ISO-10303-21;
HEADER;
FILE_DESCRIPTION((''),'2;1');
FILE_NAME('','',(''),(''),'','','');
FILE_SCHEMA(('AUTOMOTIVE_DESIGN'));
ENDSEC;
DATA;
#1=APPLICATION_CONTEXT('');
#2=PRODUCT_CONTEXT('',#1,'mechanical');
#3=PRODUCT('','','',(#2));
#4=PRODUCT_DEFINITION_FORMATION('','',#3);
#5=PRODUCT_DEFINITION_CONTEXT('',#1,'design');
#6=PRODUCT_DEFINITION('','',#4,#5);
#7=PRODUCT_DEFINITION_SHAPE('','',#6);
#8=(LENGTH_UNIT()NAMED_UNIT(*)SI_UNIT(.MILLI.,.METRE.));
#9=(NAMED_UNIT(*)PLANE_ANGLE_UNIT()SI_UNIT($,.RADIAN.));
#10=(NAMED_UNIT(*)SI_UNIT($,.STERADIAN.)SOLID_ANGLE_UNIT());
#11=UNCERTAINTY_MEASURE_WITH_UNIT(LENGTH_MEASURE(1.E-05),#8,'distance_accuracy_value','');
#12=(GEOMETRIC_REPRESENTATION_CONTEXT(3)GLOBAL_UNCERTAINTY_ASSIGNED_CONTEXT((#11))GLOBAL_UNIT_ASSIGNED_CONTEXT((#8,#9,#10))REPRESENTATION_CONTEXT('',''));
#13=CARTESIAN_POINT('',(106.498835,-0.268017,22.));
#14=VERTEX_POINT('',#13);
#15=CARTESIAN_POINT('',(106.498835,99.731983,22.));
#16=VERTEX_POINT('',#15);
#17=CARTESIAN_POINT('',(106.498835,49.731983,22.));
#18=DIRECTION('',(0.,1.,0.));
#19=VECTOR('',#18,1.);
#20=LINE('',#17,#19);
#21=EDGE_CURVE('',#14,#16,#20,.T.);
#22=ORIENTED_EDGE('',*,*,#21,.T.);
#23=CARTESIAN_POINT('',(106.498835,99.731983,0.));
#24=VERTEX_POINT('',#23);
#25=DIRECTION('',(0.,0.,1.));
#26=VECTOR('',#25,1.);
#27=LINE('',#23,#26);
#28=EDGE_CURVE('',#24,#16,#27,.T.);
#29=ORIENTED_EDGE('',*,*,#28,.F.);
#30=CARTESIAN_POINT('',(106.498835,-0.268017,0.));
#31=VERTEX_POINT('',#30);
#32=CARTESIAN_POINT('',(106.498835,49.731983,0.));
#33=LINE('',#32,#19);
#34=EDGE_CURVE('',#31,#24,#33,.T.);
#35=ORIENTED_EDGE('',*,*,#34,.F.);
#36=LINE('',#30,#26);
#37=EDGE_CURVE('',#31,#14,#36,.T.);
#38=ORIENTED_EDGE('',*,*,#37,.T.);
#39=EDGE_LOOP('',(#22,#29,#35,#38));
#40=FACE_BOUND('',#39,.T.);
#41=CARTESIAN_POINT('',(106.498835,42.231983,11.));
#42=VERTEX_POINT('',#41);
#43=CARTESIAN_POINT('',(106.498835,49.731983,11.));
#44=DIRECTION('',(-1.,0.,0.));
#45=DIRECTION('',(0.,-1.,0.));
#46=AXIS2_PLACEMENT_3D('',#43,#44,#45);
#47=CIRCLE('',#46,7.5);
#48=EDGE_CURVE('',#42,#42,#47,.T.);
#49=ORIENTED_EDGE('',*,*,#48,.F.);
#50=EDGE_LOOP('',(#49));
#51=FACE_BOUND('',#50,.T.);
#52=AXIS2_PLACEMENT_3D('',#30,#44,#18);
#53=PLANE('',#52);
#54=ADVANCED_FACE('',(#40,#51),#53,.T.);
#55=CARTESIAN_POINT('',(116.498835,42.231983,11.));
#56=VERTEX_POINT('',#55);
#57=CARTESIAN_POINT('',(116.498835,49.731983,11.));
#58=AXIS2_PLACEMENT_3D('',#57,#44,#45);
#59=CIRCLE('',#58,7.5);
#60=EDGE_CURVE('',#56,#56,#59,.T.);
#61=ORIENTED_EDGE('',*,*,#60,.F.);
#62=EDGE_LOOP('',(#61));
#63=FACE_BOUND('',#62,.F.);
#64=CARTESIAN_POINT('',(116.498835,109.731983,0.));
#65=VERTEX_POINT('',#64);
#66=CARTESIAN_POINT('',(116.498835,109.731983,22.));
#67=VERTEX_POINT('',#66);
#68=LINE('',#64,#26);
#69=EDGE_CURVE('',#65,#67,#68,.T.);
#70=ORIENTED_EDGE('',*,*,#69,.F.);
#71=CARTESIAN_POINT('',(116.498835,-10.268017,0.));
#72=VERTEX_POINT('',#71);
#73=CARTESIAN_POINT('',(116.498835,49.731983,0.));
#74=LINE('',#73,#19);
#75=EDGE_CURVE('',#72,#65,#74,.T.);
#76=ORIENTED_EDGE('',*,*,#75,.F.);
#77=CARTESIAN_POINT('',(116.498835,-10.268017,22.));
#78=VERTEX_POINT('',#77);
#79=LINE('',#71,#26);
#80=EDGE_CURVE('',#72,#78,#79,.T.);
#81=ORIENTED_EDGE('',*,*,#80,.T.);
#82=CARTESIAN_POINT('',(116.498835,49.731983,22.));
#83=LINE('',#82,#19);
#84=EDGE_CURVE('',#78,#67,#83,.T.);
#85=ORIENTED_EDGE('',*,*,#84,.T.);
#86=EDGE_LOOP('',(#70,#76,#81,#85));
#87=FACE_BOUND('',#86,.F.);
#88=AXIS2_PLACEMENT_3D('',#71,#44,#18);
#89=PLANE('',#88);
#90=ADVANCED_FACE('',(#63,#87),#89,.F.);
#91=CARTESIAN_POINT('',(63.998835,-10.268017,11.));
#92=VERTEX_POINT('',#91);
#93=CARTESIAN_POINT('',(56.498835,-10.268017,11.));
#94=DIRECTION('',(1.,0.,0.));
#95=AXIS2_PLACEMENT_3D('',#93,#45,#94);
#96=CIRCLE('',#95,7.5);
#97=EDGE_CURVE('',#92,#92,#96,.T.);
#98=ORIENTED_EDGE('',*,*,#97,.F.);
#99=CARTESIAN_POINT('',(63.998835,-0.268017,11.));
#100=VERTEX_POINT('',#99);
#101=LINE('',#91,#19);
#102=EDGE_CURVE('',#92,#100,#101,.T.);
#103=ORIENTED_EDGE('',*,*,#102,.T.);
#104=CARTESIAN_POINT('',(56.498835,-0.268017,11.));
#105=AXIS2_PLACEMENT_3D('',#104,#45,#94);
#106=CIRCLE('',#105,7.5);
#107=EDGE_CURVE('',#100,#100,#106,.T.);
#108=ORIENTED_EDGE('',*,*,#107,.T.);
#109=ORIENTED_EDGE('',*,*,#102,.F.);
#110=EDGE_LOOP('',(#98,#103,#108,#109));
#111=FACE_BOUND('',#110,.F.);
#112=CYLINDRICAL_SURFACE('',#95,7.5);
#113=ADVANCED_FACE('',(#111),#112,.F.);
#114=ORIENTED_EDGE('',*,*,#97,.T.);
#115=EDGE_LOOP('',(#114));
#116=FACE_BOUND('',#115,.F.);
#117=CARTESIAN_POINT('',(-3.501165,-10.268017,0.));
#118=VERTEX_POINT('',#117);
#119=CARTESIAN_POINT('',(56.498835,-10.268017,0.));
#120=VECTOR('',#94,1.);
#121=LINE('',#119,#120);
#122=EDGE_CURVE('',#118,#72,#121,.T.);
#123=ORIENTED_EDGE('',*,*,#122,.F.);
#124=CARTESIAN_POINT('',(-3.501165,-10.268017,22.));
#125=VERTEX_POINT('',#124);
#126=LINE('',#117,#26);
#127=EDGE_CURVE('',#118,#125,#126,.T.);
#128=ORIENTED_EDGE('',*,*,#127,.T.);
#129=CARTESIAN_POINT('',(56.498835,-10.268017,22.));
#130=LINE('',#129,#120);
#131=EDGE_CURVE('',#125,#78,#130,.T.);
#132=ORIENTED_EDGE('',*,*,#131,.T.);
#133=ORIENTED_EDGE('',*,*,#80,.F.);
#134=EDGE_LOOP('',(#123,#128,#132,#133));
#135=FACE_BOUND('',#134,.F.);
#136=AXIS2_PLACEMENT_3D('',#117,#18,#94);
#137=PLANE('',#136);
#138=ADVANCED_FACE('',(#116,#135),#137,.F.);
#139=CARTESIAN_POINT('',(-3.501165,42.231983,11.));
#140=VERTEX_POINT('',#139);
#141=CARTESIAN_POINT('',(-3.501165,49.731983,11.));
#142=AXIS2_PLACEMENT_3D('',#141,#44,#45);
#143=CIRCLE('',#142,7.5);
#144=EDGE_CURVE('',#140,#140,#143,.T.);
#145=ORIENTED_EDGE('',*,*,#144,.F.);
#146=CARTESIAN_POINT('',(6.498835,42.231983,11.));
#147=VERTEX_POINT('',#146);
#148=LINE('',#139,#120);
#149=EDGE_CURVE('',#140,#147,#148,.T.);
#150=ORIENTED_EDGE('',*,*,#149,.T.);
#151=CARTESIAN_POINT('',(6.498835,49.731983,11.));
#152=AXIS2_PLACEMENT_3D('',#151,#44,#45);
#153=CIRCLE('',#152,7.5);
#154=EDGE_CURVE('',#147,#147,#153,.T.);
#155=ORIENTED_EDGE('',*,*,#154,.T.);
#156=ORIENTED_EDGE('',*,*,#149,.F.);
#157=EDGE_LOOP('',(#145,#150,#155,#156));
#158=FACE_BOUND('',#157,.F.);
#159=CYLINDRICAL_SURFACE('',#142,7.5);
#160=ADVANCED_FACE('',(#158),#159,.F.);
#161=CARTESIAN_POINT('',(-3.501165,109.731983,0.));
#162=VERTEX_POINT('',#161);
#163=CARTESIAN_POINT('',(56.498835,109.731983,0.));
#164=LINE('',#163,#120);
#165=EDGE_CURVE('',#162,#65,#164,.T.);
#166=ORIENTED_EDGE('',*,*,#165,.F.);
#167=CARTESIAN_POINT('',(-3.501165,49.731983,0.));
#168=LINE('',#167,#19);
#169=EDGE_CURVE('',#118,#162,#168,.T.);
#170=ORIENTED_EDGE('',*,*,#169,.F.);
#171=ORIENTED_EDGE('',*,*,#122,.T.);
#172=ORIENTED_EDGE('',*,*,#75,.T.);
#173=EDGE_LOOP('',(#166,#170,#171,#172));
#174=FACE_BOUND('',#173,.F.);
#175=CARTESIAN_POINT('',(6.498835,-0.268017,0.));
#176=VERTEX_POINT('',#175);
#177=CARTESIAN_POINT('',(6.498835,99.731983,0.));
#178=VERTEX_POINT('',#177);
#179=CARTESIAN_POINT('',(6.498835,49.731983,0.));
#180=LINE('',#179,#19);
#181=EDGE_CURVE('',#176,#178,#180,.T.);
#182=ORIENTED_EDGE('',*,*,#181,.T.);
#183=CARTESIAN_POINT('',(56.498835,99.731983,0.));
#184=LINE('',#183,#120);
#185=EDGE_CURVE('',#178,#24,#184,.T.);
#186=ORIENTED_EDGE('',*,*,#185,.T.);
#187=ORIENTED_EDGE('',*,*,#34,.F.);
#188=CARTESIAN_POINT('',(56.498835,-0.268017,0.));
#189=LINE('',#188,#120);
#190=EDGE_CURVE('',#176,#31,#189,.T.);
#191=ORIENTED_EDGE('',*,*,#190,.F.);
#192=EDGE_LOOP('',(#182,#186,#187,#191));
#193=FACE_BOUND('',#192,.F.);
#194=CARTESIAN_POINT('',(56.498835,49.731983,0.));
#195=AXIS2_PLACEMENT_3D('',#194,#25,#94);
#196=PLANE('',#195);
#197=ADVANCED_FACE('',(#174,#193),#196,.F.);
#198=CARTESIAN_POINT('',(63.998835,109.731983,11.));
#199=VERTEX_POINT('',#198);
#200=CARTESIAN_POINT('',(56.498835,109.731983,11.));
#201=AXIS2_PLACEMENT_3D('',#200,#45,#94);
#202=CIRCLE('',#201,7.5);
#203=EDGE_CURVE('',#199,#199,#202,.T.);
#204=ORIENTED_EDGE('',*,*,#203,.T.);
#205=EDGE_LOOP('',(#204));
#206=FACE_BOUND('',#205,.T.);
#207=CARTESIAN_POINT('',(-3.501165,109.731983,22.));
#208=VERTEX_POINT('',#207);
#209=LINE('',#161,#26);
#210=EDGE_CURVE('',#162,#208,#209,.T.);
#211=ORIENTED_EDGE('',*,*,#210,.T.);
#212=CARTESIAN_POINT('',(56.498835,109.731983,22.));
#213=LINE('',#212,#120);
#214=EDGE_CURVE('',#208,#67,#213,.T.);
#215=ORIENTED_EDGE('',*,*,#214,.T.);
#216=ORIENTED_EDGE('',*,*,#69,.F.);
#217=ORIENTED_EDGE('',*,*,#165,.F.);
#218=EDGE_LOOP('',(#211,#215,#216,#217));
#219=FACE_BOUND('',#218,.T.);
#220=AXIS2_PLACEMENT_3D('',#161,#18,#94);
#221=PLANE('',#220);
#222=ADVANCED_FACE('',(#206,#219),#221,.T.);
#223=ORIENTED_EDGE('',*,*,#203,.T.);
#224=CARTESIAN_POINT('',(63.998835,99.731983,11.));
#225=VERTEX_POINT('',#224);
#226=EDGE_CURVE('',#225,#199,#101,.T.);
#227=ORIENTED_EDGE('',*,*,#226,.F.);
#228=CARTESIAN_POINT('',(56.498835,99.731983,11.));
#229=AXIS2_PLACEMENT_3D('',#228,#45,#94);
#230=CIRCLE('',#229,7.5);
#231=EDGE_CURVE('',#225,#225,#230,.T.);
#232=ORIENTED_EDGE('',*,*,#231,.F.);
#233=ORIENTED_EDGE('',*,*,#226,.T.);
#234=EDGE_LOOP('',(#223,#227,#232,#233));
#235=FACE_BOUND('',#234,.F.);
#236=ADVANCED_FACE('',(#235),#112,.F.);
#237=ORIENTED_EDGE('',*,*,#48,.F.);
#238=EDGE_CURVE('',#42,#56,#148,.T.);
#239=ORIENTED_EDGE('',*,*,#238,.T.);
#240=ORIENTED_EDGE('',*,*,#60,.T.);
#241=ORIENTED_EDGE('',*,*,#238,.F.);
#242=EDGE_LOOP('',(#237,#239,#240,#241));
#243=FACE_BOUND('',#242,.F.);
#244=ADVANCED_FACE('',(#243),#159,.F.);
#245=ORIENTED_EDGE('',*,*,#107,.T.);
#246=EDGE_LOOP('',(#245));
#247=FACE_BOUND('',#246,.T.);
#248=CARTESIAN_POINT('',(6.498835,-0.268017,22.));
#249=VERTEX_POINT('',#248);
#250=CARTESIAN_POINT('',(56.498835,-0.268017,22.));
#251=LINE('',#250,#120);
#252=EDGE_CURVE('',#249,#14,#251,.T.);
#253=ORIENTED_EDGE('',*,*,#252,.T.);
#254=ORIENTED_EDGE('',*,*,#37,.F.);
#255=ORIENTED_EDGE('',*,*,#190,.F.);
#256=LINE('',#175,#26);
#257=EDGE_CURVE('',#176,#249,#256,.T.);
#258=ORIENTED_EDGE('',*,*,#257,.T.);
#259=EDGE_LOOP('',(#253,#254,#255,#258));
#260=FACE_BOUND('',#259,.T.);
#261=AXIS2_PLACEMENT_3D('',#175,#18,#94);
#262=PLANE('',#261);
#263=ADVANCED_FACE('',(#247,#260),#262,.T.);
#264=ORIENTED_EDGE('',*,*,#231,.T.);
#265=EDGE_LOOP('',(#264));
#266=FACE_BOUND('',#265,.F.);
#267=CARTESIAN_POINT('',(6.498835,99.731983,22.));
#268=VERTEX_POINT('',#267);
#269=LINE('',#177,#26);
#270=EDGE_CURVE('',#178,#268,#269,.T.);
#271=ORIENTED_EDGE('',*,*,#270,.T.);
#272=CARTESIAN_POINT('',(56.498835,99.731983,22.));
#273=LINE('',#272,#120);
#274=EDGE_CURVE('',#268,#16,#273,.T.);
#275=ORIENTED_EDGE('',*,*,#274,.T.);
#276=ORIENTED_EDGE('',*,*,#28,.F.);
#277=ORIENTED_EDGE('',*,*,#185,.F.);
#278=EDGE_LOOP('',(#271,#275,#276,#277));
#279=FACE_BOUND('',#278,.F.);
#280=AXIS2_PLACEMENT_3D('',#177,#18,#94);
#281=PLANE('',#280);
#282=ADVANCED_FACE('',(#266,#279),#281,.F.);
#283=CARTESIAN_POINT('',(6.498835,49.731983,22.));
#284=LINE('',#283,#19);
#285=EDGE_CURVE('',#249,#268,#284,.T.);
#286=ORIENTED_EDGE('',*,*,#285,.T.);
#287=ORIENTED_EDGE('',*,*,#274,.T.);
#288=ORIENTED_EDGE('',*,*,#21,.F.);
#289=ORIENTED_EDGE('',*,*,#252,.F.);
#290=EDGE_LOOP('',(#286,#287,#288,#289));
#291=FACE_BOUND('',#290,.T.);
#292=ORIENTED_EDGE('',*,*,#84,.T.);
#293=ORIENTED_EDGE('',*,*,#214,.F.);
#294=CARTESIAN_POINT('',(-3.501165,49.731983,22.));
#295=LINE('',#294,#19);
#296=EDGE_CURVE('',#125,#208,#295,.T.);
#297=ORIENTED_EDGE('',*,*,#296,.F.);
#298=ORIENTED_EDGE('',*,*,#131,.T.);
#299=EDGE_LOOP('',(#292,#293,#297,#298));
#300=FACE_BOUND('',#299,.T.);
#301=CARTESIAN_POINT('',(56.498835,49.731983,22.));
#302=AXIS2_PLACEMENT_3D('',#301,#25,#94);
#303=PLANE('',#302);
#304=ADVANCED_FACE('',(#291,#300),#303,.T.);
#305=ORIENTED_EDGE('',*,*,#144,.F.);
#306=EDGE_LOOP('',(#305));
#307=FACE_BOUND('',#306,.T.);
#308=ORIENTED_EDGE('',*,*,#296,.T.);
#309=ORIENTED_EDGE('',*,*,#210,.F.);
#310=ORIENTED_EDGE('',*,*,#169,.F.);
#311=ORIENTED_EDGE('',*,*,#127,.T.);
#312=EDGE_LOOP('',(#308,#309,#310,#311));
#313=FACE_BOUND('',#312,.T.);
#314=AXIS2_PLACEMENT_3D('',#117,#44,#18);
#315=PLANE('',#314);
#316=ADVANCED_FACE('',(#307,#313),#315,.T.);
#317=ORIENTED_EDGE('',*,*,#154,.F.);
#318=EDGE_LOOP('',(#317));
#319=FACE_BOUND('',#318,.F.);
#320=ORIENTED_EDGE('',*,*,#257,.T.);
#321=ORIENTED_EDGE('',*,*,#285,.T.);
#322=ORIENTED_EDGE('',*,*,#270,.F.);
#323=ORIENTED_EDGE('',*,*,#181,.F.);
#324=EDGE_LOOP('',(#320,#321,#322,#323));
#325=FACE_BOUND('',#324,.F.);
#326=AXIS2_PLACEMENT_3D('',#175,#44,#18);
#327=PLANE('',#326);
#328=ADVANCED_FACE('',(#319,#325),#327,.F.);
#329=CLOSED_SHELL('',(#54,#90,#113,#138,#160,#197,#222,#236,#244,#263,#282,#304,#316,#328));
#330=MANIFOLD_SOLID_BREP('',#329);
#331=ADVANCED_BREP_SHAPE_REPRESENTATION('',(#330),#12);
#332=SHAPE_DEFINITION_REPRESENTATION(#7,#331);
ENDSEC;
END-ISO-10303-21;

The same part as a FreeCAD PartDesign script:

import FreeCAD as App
import Part
import Sketcher
from FreeCAD import Vector

doc = App.newDocument("Part")
body = doc.addObject("PartDesign::Body", "Body")

sketch1 = body.newObject("Sketcher::SketchObject", "Sketch")
sketch1.AttachmentSupport = (doc.getObject("XY_Plane"), [""])
sketch1.MapMode = "FlatFace"
sketch1.addGeometry(Part.LineSegment(Vector(-3.501165, 109.731983, 0), Vector(-3.501165, -10.268017, 0)), False)
sketch1.addGeometry(Part.LineSegment(Vector(-3.501165, -10.268017, 0), Vector(116.498835, -10.268017, 0)), False)
sketch1.addGeometry(Part.LineSegment(Vector(116.498835, -10.268017, 0), Vector(116.498835, 109.731983, 0)), False)
sketch1.addGeometry(Part.LineSegment(Vector(116.498835, 109.731983, 0), Vector(-3.501165, 109.731983, 0)), False)
sketch1.addGeometry(Part.LineSegment(Vector(106.498835, -0.268017, 0), Vector(6.498835, -0.268017, 0)), False)
sketch1.addGeometry(Part.LineSegment(Vector(6.498835, -0.268017, 0), Vector(6.498835, 99.731983, 0)), False)
sketch1.addGeometry(Part.LineSegment(Vector(6.498835, 99.731983, 0), Vector(106.498835, 99.731983, 0)), False)
sketch1.addGeometry(Part.LineSegment(Vector(106.498835, 99.731983, 0), Vector(106.498835, -0.268017, 0)), False)
sketch1.addConstraint(Sketcher.Constraint("Coincident", 0, 2, 1, 1))
sketch1.addConstraint(Sketcher.Constraint("Coincident", 1, 2, 2, 1))
sketch1.addConstraint(Sketcher.Constraint("Coincident", 2, 2, 3, 1))
sketch1.addConstraint(Sketcher.Constraint("Coincident", 3, 2, 0, 1))
sketch1.addConstraint(Sketcher.Constraint("Coincident", 4, 2, 5, 1))
sketch1.addConstraint(Sketcher.Constraint("Coincident", 5, 2, 6, 1))
sketch1.addConstraint(Sketcher.Constraint("Coincident", 6, 2, 7, 1))
sketch1.addConstraint(Sketcher.Constraint("Coincident", 7, 2, 4, 1))
sketch1.addConstraint(Sketcher.Constraint("Vertical", 0))
sketch1.addConstraint(Sketcher.Constraint("Horizontal", 1))
sketch1.addConstraint(Sketcher.Constraint("Vertical", 2))
sketch1.addConstraint(Sketcher.Constraint("Horizontal", 3))
sketch1.addConstraint(Sketcher.Constraint("Horizontal", 4))
sketch1.addConstraint(Sketcher.Constraint("Vertical", 5))
sketch1.addConstraint(Sketcher.Constraint("Horizontal", 6))
sketch1.addConstraint(Sketcher.Constraint("Vertical", 7))
sketch1.addConstraint(Sketcher.Constraint("Equal", 3, 0))
sketch1.addConstraint(Sketcher.Constraint("Equal", 6, 5))
sketch1.addConstraint(Sketcher.Constraint("DistanceX", 1, 1, 1, 2, 120.0))
sketch1.addConstraint(Sketcher.Constraint("DistanceX", 4, 2, 4, 1, 100.0))
sketch1.addConstraint(Sketcher.Constraint("DistanceX", 0, 2, 4, 2, 10.0))
sketch1.addConstraint(Sketcher.Constraint("DistanceY", 0, 2, 4, 2, 10.0))
sketch1.addConstraint(Sketcher.Constraint("DistanceX", 0, 2, -1, 1, 3.501165))
sketch1.addConstraint(Sketcher.Constraint("DistanceY", 0, 2, -1, 1, 10.268017))
pad1 = body.newObject("PartDesign::Pad", "Pad")
pad1.Profile = sketch1
pad1.Length = 22

sketch2 = body.newObject("Sketcher::SketchObject", "Sketch001")
sketch2.AttachmentSupport = (doc.getObject("XZ_Plane"), [""])
sketch2.MapMode = "FlatFace"
sketch2.AttachmentOffset = App.Placement(Vector(0, 0, 10.268017), App.Rotation())
sketch2.addGeometry(Part.Circle(Vector(56.498835, 11, 0), Vector(0, 0, 1), 7.5), False)
sketch2.addConstraint(Sketcher.Constraint("Diameter", 0, 15.0))
sketch2.addConstraint(Sketcher.Constraint("DistanceY", -1, 1, 0, 3, 11.0))
sketch2.addConstraint(Sketcher.Constraint("DistanceX", -1, 1, 0, 3, 56.498835))
pocket1 = body.newObject("PartDesign::Pocket", "Pocket")
pocket1.Profile = sketch2
pocket1.Length = 237

sketch3 = body.newObject("Sketcher::SketchObject", "Sketch002")
sketch3.AttachmentSupport = (doc.getObject("YZ_Plane"), [""])
sketch3.MapMode = "FlatFace"
sketch3.AttachmentOffset = App.Placement(Vector(0, 0, -3.501165), App.Rotation())
sketch3.addGeometry(Part.Circle(Vector(49.731983, 11, 0), Vector(0, 0, 1), 7.5), False)
sketch3.addConstraint(Sketcher.Constraint("Diameter", 0, 15.0))
sketch3.addConstraint(Sketcher.Constraint("DistanceY", -1, 1, 0, 3, 11.0))
sketch3.addConstraint(Sketcher.Constraint("DistanceX", -1, 1, 0, 3, 49.731983))
pocket2 = body.newObject("PartDesign::Pocket", "Pocket001")
pocket2.Profile = sketch3
pocket2.Length = 185
pocket2.Reversed = True

doc.recompute()
